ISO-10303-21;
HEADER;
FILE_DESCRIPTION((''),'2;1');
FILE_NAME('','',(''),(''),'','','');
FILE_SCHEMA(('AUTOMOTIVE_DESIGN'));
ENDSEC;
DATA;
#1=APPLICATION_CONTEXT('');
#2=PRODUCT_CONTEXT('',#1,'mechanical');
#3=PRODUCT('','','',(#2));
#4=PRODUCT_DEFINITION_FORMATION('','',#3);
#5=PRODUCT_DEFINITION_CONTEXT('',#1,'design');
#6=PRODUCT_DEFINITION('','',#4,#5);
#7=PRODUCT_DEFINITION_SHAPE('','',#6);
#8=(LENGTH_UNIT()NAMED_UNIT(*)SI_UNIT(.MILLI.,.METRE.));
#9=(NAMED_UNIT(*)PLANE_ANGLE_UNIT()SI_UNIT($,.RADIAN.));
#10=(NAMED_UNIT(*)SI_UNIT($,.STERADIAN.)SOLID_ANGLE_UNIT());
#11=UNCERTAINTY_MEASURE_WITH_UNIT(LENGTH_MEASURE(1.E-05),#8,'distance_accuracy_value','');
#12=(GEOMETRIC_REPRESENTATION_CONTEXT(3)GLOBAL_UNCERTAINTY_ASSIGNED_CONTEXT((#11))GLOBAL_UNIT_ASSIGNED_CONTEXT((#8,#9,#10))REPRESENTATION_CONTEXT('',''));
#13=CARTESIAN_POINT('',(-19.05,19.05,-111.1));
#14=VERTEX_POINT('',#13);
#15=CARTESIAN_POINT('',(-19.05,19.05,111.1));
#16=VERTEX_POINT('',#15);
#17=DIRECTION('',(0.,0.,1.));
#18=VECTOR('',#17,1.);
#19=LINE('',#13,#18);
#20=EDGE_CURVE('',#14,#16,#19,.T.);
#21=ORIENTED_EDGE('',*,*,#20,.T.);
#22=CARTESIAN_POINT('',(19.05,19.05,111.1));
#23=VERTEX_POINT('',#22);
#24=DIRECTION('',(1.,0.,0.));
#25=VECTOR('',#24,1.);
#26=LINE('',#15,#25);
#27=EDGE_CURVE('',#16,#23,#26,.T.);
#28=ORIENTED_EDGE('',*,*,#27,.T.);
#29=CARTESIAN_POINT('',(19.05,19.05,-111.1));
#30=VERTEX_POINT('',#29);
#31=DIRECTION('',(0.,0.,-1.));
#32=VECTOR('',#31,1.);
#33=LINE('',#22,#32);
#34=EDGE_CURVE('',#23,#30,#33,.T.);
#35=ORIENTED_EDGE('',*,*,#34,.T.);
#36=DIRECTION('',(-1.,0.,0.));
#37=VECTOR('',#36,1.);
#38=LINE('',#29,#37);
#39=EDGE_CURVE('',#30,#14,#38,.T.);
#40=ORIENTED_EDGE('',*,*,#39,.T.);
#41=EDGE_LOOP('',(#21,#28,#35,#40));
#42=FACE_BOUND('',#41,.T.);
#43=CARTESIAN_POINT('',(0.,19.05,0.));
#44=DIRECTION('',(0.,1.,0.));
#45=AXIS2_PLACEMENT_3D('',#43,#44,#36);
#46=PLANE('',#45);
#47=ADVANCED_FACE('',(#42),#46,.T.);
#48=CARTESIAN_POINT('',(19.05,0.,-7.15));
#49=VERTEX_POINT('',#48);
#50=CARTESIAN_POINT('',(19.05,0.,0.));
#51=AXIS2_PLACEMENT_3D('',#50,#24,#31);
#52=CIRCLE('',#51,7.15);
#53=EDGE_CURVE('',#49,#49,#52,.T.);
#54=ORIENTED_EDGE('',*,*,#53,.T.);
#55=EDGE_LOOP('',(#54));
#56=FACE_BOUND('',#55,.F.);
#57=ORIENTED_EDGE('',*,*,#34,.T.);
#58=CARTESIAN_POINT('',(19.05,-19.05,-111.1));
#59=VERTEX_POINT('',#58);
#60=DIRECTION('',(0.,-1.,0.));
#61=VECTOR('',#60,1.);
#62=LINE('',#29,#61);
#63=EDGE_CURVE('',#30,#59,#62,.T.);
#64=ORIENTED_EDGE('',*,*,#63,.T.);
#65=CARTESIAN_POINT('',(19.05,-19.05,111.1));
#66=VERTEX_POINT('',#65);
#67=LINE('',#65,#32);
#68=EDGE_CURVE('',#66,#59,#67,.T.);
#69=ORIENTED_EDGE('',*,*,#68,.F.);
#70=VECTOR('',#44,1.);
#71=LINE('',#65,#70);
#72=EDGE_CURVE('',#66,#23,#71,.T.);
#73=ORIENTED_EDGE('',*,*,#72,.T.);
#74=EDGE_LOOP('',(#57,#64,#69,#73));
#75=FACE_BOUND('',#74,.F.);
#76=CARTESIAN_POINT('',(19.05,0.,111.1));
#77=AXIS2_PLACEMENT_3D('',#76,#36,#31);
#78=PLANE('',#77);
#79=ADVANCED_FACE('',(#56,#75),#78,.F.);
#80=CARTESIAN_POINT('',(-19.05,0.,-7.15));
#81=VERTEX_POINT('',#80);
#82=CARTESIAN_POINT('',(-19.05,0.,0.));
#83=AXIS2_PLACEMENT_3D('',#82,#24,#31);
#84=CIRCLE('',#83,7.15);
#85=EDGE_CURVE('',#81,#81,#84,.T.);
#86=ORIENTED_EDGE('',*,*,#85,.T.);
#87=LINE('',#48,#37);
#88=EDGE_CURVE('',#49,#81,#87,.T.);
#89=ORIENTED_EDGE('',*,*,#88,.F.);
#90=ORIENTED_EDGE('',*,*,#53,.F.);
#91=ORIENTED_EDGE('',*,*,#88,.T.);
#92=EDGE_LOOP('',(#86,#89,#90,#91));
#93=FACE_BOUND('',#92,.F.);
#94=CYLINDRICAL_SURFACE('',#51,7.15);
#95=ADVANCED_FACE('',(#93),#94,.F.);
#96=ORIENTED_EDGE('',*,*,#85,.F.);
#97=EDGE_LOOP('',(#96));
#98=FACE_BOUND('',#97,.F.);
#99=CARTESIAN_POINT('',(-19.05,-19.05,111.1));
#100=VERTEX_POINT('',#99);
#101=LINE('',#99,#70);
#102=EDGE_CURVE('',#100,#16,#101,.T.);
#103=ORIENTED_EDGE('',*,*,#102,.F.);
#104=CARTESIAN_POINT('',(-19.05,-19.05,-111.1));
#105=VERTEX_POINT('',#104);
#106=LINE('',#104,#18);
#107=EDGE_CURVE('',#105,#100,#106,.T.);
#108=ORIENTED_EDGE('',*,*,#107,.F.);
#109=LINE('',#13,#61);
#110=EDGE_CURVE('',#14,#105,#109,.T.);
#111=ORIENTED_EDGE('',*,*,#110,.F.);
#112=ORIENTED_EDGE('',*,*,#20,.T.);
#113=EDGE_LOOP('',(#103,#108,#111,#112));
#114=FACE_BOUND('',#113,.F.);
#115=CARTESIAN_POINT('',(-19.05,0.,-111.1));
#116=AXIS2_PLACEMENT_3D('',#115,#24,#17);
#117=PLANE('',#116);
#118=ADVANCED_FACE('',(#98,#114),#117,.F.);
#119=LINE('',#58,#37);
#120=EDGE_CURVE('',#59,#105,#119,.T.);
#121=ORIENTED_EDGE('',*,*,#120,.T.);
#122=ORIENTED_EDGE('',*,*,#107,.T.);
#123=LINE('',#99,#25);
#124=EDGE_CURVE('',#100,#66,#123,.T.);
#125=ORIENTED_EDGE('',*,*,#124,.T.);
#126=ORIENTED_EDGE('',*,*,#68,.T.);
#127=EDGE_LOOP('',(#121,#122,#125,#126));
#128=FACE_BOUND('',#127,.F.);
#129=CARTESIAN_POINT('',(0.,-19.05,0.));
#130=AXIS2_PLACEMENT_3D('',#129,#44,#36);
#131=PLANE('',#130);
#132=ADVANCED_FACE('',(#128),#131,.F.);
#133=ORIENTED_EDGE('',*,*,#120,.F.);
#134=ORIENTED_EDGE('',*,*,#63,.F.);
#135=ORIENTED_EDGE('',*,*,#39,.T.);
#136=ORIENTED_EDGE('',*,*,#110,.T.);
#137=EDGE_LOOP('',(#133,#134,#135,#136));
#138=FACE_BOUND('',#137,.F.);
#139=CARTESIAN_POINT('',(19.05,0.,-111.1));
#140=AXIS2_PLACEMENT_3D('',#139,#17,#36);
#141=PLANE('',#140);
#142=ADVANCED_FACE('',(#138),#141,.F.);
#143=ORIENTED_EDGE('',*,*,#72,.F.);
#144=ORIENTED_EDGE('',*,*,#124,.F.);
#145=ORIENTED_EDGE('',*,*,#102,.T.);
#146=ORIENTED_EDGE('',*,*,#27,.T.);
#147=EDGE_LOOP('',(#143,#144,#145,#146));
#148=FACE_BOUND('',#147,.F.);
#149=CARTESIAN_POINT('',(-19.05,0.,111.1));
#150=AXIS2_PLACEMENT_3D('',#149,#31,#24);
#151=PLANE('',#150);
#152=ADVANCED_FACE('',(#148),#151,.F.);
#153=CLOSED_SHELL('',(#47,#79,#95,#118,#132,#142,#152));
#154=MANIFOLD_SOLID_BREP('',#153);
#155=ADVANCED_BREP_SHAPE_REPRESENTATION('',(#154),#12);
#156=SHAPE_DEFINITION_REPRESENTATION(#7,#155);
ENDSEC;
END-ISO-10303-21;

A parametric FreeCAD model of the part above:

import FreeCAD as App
import Part
import Sketcher
from FreeCAD import Vector
Q = App.Units.Quantity


def add_polygon(sketch, points):
    """Adds a closed chain of lines whose ends are joined by coincident constraints."""
    first, n = sketch.GeometryCount, len(points)
    for a, b in zip(points, points[1:] + points[:1]):
        sketch.addGeometry(Part.LineSegment(App.Vector(*a, 0), App.Vector(*b, 0)), False)
    for i in range(n):
        sketch.addConstraint(Sketcher.Constraint("Coincident", first + i, 2, first + (i + 1) % n, 1))

doc = App.newDocument("Part")
body = doc.addObject("PartDesign::Body", "Body")

# Sketch on XZ plane
sketch1 = doc.addObject("Sketcher::SketchObject", "Sketch")
body.addObject(sketch1)
sketch1.AttachmentSupport = (doc.XZ_Plane, [""])
sketch1.MapMode = "FlatFace"
add_polygon(sketch1, [(-19.05, -111.1), (-19.05, 111.1), (19.05, 111.1), (19.05, -111.1)])  # lines 0-3
sketch1.addConstraint(Sketcher.Constraint("Vertical", 0))
sketch1.addConstraint(Sketcher.Constraint("Horizontal", 1))
sketch1.addConstraint(Sketcher.Constraint("Vertical", 2))
sketch1.addConstraint(Sketcher.Constraint("Horizontal", 3))
sketch1.addConstraint(Sketcher.Constraint("Symmetric", 0, 2, 2, 2, -1, 1))
sketch1.addConstraint(Sketcher.Constraint("DistanceX", 1, 1, 1, 2, Q("1.5 in")))
sketch1.addConstraint(Sketcher.Constraint("DistanceY", 0, 1, 0, 2, 222.2))
pad1 = doc.addObject("PartDesign::Pad", "Pad")
body.addObject(pad1)
pad1.Profile = sketch1
pad1.Length = Q("1.5 in")
pad1.Midplane = True

# Sketch on YZ plane
sketch2 = doc.addObject("Sketcher::SketchObject", "Sketch001")
body.addObject(sketch2)
sketch2.AttachmentSupport = (doc.YZ_Plane, [""])
sketch2.MapMode = "FlatFace"
sketch2.AttachmentOffset = App.Placement(Vector(0, 0, 0.75 * 25.4), App.Rotation())
sketch2.addGeometry(Part.Circle(Vector(0, 0, 0), Vector(0, 0, 1), 7.15), False)
sketch2.addConstraint(Sketcher.Constraint("Coincident", 0, 3, -1, 1))
sketch2.addConstraint(Sketcher.Constraint("Diameter", 0, Q("0.563 in")))
pocket1 = doc.addObject("PartDesign::Pocket", "Pocket")
body.addObject(pocket1)
pocket1.Profile = sketch2
pocket1.Type = "ThroughAll"

doc.recompute()
